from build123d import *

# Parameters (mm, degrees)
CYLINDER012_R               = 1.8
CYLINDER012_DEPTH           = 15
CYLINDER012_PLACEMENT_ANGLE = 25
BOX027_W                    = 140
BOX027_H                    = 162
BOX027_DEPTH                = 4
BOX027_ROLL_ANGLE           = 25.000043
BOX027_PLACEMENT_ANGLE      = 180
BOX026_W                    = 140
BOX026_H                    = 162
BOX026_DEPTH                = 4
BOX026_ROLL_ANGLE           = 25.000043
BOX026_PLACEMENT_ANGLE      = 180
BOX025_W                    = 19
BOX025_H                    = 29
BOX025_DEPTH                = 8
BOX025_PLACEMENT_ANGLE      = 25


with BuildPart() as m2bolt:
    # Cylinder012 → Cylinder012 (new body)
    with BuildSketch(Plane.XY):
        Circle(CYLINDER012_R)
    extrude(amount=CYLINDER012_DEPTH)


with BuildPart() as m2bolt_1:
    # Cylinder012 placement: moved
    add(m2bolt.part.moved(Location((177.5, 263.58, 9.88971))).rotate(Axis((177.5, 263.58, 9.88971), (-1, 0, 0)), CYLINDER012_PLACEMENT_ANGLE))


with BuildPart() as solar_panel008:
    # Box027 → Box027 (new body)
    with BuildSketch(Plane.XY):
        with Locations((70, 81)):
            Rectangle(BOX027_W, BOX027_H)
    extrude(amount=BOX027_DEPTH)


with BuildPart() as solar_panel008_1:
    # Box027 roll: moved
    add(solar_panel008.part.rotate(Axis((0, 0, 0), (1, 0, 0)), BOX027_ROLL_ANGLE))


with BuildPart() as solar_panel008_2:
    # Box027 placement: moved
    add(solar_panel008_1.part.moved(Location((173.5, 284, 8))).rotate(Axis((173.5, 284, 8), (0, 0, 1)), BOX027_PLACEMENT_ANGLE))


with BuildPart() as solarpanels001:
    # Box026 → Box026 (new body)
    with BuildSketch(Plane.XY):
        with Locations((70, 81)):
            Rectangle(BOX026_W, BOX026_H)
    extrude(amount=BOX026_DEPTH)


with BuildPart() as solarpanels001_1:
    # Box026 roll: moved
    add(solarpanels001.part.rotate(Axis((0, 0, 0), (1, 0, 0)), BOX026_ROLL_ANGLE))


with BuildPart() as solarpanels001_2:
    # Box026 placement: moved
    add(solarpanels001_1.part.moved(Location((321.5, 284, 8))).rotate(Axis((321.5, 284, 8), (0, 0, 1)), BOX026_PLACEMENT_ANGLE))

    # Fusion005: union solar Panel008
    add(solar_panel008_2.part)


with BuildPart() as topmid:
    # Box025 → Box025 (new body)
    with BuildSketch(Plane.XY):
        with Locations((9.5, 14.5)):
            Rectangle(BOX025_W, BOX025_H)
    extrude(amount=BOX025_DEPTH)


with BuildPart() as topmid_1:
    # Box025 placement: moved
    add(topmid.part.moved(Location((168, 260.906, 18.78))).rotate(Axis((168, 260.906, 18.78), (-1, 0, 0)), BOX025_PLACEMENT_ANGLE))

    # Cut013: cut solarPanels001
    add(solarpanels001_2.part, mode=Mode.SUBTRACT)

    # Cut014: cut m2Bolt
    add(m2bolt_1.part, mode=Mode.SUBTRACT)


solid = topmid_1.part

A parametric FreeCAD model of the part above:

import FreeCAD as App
import Part
import Sketcher

V = App.Vector
Q = App.Units.Quantity

doc = App.newDocument("Part")
params = doc.addObject("Spreadsheet::Sheet", "Params")
for row, (alias, value) in enumerate([
    ("sketch1_diameter", "3.6 mm"),
    ("pad1_length", "15 mm"),
    ("sketch2_width", "140 mm"),
    ("sketch2_height", "162 mm"),
    ("pad2_length", "4 mm"),
    ("sketch3_width", "140 mm"),
    ("sketch3_height", "162 mm"),
    ("pad3_length", "4 mm"),
    ("sketch4_width", "19 mm"),
    ("sketch4_height", "29 mm"),
    ("pad4_length", "8 mm"),
], start=1):
    params.set(f"A{row}", alias)
    params.set(f"B{row}", "=" + value)
    params.setAlias(f"B{row}", alias)

body = doc.addObject("PartDesign::Body", "Body")

sketch1 = body.newObject("Sketcher::SketchObject", "Sketch")
sketch1.AttachmentSupport = (doc.getObject("XY_Plane"), [""])
sketch1.MapMode = "FlatFace"
sketch1.addGeometry(Part.Circle(V(0, 0, 0), V(0, 0, 1), 1.8), False)
sketch1.addConstraint([
    Sketcher.Constraint("Coincident", 0, 3, -1, 1),
    Sketcher.Constraint("Diameter", 0, Q("3.6 mm")),
])
sketch1.setExpression("Constraints[1]", "Params.sketch1_diameter")
pad1 = body.newObject("PartDesign::Pad", "Pad")
pad1.Profile = sketch1
pad1.setExpression("Length", "Params.pad1_length")
body2 = doc.addObject("PartDesign::Body", "Body001")
doc.recompute()

body.Placement = App.Placement(V(177.5, 263.58, 9.88971), App.Rotation(V(-1, 0, 0), 25))
boolean = body2.newObject("PartDesign::Boolean", "Boolean")
boolean.Type = "Fuse"
boolean.addObjects([body])
body3 = doc.addObject("PartDesign::Body", "Body002")

sketch2 = body3.newObject("Sketcher::SketchObject", "Sketch001")
sketch2.AttachmentSupport = (doc.getObject("XY_Plane002"), [""])
sketch2.MapMode = "FlatFace"
sketch2.addGeometry([
    Part.LineSegment(V(0, 162, 0), V(0, 0, 0)),
    Part.LineSegment(V(0, 0, 0), V(140, 0, 0)),
    Part.LineSegment(V(140, 0, 0), V(140, 162, 0)),
    Part.LineSegment(V(140, 162, 0), V(0, 162, 0)),
], False)
sketch2.addConstraint([
    Sketcher.Constraint("Coincident", 0, 2, 1, 1),
    Sketcher.Constraint("Coincident", 1, 2, 2, 1),
    Sketcher.Constraint("Coincident", 2, 2, 3, 1),
    Sketcher.Constraint("Coincident", 3, 2, 0, 1),
    Sketcher.Constraint("Vertical", 0),
    Sketcher.Constraint("Horizontal", 1),
    Sketcher.Constraint("Vertical", 2),
    Sketcher.Constraint("Horizontal", 3),
    Sketcher.Constraint("Coincident", 0, 2, -1, 1),
    Sketcher.Constraint("DistanceX", 1, 1, 1, 2, Q("140 mm")),
    Sketcher.Constraint("DistanceY", 0, 2, 0, 1, Q("162 mm")),
])
sketch2.setExpression("Constraints[9]", "Params.sketch2_width")
sketch2.setExpression("Constraints[10]", "Params.sketch2_height")
pad2 = body3.newObject("PartDesign::Pad", "Pad001")
pad2.Profile = sketch2
pad2.setExpression("Length", "Params.pad2_length")
body4 = doc.addObject("PartDesign::Body", "Body003")
doc.recompute()

body3.Placement = App.Placement(V(0, 0, 0), App.Rotation(V(1, 0, 0), 25.000043))
boolean2 = body4.newObject("PartDesign::Boolean", "Boolean001")
boolean2.Type = "Fuse"
boolean2.addObjects([body3])
body5 = doc.addObject("PartDesign::Body", "Body004")
doc.recompute()

body4.Placement = App.Placement(V(173.5, 284, 8), App.Rotation(V(0, 0, 1), 180))
boolean3 = body5.newObject("PartDesign::Boolean", "Boolean002")
boolean3.Type = "Fuse"
boolean3.addObjects([body4])
body6 = doc.addObject("PartDesign::Body", "Body005")

sketch3 = body6.newObject("Sketcher::SketchObject", "Sketch002")
sketch3.AttachmentSupport = (doc.getObject("XY_Plane005"), [""])
sketch3.MapMode = "FlatFace"
sketch3.addGeometry([
    Part.LineSegment(V(0, 162, 0), V(0, 0, 0)),
    Part.LineSegment(V(0, 0, 0), V(140, 0, 0)),
    Part.LineSegment(V(140, 0, 0), V(140, 162, 0)),
    Part.LineSegment(V(140, 162, 0), V(0, 162, 0)),
], False)
sketch3.addConstraint([
    Sketcher.Constraint("Coincident", 0, 2, 1, 1),
    Sketcher.Constraint("Coincident", 1, 2, 2, 1),
    Sketcher.Constraint("Coincident", 2, 2, 3, 1),
    Sketcher.Constraint("Coincident", 3, 2, 0, 1),
    Sketcher.Constraint("Vertical", 0),
    Sketcher.Constraint("Horizontal", 1),
    Sketcher.Constraint("Vertical", 2),
    Sketcher.Constraint("Horizontal", 3),
    Sketcher.Constraint("Coincident", 0, 2, -1, 1),
    Sketcher.Constraint("DistanceX", 1, 1, 1, 2, Q("140 mm")),
    Sketcher.Constraint("DistanceY", 0, 2, 0, 1, Q("162 mm")),
])
sketch3.setExpression("Constraints[9]", "Params.sketch3_width")
sketch3.setExpression("Constraints[10]", "Params.sketch3_height")
pad3 = body6.newObject("PartDesign::Pad", "Pad002")
pad3.Profile = sketch3
pad3.setExpression("Length", "Params.pad3_length")
body7 = doc.addObject("PartDesign::Body", "Body006")
doc.recompute()

body6.Placement = App.Placement(V(0, 0, 0), App.Rotation(V(1, 0, 0), 25.000043))
boolean4 = body7.newObject("PartDesign::Boolean", "Boolean003")
boolean4.Type = "Fuse"
boolean4.addObjects([body6])
body8 = doc.addObject("PartDesign::Body", "Body007")
body8.AllowCompound = True
doc.recompute()

body7.Placement = App.Placement(V(321.5, 284, 8), App.Rotation(V(0, 0, 1), 180))
boolean5 = body8.newObject("PartDesign::Boolean", "Boolean004")
boolean5.Type = "Fuse"
boolean5.addObjects([body7])
doc.recompute()

boolean6 = body8.newObject("PartDesign::Boolean", "Boolean005")
boolean6.Type = "Fuse"
boolean6.addObjects([body5])
body9 = doc.addObject("PartDesign::Body", "Body008")

sketch4 = body9.newObject("Sketcher::SketchObject", "Sketch003")
sketch4.AttachmentSupport = (doc.getObject("XY_Plane008"), [""])
sketch4.MapMode = "FlatFace"
sketch4.addGeometry([
    Part.LineSegment(V(0, 29, 0), V(0, 0, 0)),
    Part.LineSegment(V(0, 0, 0), V(19, 0, 0)),
    Part.LineSegment(V(19, 0, 0), V(19, 29, 0)),
    Part.LineSegment(V(19, 29, 0), V(0, 29, 0)),
], False)
sketch4.addConstraint([
    Sketcher.Constraint("Coincident", 0, 2, 1, 1),
    Sketcher.Constraint("Coincident", 1, 2, 2, 1),
    Sketcher.Constraint("Coincident", 2, 2, 3, 1),
    Sketcher.Constraint("Coincident", 3, 2, 0, 1),
    Sketcher.Constraint("Vertical", 0),
    Sketcher.Constraint("Horizontal", 1),
    Sketcher.Constraint("Vertical", 2),
    Sketcher.Constraint("Horizontal", 3),
    Sketcher.Constraint("Coincident", 0, 2, -1, 1),
    Sketcher.Constraint("DistanceX", 1, 1, 1, 2, Q("19 mm")),
    Sketcher.Constraint("DistanceY", 0, 2, 0, 1, Q("29 mm")),
])
sketch4.setExpression("Constraints[9]", "Params.sketch4_width")
sketch4.setExpression("Constraints[10]", "Params.sketch4_height")
pad4 = body9.newObject("PartDesign::Pad", "Pad003")
pad4.Profile = sketch4
pad4.setExpression("Length", "Params.pad4_length")
body10 = doc.addObject("PartDesign::Body", "Body009")
doc.recompute()

body9.Placement = App.Placement(V(168, 260.906, 18.78), App.Rotation(V(-1, 0, 0), 25))
boolean7 = body10.newObject("PartDesign::Boolean", "Boolean006")
boolean7.Type = "Fuse"
boolean7.addObjects([body9])
doc.recompute()

boolean8 = body10.newObject("PartDesign::Boolean", "Boolean007")
boolean8.Type = "Cut"
boolean8.addObjects([body8])
doc.recompute()

boolean9 = body10.newObject("PartDesign::Boolean", "Boolean008")
boolean9.Type = "Cut"
boolean9.addObjects([body2])

doc.recompute()
